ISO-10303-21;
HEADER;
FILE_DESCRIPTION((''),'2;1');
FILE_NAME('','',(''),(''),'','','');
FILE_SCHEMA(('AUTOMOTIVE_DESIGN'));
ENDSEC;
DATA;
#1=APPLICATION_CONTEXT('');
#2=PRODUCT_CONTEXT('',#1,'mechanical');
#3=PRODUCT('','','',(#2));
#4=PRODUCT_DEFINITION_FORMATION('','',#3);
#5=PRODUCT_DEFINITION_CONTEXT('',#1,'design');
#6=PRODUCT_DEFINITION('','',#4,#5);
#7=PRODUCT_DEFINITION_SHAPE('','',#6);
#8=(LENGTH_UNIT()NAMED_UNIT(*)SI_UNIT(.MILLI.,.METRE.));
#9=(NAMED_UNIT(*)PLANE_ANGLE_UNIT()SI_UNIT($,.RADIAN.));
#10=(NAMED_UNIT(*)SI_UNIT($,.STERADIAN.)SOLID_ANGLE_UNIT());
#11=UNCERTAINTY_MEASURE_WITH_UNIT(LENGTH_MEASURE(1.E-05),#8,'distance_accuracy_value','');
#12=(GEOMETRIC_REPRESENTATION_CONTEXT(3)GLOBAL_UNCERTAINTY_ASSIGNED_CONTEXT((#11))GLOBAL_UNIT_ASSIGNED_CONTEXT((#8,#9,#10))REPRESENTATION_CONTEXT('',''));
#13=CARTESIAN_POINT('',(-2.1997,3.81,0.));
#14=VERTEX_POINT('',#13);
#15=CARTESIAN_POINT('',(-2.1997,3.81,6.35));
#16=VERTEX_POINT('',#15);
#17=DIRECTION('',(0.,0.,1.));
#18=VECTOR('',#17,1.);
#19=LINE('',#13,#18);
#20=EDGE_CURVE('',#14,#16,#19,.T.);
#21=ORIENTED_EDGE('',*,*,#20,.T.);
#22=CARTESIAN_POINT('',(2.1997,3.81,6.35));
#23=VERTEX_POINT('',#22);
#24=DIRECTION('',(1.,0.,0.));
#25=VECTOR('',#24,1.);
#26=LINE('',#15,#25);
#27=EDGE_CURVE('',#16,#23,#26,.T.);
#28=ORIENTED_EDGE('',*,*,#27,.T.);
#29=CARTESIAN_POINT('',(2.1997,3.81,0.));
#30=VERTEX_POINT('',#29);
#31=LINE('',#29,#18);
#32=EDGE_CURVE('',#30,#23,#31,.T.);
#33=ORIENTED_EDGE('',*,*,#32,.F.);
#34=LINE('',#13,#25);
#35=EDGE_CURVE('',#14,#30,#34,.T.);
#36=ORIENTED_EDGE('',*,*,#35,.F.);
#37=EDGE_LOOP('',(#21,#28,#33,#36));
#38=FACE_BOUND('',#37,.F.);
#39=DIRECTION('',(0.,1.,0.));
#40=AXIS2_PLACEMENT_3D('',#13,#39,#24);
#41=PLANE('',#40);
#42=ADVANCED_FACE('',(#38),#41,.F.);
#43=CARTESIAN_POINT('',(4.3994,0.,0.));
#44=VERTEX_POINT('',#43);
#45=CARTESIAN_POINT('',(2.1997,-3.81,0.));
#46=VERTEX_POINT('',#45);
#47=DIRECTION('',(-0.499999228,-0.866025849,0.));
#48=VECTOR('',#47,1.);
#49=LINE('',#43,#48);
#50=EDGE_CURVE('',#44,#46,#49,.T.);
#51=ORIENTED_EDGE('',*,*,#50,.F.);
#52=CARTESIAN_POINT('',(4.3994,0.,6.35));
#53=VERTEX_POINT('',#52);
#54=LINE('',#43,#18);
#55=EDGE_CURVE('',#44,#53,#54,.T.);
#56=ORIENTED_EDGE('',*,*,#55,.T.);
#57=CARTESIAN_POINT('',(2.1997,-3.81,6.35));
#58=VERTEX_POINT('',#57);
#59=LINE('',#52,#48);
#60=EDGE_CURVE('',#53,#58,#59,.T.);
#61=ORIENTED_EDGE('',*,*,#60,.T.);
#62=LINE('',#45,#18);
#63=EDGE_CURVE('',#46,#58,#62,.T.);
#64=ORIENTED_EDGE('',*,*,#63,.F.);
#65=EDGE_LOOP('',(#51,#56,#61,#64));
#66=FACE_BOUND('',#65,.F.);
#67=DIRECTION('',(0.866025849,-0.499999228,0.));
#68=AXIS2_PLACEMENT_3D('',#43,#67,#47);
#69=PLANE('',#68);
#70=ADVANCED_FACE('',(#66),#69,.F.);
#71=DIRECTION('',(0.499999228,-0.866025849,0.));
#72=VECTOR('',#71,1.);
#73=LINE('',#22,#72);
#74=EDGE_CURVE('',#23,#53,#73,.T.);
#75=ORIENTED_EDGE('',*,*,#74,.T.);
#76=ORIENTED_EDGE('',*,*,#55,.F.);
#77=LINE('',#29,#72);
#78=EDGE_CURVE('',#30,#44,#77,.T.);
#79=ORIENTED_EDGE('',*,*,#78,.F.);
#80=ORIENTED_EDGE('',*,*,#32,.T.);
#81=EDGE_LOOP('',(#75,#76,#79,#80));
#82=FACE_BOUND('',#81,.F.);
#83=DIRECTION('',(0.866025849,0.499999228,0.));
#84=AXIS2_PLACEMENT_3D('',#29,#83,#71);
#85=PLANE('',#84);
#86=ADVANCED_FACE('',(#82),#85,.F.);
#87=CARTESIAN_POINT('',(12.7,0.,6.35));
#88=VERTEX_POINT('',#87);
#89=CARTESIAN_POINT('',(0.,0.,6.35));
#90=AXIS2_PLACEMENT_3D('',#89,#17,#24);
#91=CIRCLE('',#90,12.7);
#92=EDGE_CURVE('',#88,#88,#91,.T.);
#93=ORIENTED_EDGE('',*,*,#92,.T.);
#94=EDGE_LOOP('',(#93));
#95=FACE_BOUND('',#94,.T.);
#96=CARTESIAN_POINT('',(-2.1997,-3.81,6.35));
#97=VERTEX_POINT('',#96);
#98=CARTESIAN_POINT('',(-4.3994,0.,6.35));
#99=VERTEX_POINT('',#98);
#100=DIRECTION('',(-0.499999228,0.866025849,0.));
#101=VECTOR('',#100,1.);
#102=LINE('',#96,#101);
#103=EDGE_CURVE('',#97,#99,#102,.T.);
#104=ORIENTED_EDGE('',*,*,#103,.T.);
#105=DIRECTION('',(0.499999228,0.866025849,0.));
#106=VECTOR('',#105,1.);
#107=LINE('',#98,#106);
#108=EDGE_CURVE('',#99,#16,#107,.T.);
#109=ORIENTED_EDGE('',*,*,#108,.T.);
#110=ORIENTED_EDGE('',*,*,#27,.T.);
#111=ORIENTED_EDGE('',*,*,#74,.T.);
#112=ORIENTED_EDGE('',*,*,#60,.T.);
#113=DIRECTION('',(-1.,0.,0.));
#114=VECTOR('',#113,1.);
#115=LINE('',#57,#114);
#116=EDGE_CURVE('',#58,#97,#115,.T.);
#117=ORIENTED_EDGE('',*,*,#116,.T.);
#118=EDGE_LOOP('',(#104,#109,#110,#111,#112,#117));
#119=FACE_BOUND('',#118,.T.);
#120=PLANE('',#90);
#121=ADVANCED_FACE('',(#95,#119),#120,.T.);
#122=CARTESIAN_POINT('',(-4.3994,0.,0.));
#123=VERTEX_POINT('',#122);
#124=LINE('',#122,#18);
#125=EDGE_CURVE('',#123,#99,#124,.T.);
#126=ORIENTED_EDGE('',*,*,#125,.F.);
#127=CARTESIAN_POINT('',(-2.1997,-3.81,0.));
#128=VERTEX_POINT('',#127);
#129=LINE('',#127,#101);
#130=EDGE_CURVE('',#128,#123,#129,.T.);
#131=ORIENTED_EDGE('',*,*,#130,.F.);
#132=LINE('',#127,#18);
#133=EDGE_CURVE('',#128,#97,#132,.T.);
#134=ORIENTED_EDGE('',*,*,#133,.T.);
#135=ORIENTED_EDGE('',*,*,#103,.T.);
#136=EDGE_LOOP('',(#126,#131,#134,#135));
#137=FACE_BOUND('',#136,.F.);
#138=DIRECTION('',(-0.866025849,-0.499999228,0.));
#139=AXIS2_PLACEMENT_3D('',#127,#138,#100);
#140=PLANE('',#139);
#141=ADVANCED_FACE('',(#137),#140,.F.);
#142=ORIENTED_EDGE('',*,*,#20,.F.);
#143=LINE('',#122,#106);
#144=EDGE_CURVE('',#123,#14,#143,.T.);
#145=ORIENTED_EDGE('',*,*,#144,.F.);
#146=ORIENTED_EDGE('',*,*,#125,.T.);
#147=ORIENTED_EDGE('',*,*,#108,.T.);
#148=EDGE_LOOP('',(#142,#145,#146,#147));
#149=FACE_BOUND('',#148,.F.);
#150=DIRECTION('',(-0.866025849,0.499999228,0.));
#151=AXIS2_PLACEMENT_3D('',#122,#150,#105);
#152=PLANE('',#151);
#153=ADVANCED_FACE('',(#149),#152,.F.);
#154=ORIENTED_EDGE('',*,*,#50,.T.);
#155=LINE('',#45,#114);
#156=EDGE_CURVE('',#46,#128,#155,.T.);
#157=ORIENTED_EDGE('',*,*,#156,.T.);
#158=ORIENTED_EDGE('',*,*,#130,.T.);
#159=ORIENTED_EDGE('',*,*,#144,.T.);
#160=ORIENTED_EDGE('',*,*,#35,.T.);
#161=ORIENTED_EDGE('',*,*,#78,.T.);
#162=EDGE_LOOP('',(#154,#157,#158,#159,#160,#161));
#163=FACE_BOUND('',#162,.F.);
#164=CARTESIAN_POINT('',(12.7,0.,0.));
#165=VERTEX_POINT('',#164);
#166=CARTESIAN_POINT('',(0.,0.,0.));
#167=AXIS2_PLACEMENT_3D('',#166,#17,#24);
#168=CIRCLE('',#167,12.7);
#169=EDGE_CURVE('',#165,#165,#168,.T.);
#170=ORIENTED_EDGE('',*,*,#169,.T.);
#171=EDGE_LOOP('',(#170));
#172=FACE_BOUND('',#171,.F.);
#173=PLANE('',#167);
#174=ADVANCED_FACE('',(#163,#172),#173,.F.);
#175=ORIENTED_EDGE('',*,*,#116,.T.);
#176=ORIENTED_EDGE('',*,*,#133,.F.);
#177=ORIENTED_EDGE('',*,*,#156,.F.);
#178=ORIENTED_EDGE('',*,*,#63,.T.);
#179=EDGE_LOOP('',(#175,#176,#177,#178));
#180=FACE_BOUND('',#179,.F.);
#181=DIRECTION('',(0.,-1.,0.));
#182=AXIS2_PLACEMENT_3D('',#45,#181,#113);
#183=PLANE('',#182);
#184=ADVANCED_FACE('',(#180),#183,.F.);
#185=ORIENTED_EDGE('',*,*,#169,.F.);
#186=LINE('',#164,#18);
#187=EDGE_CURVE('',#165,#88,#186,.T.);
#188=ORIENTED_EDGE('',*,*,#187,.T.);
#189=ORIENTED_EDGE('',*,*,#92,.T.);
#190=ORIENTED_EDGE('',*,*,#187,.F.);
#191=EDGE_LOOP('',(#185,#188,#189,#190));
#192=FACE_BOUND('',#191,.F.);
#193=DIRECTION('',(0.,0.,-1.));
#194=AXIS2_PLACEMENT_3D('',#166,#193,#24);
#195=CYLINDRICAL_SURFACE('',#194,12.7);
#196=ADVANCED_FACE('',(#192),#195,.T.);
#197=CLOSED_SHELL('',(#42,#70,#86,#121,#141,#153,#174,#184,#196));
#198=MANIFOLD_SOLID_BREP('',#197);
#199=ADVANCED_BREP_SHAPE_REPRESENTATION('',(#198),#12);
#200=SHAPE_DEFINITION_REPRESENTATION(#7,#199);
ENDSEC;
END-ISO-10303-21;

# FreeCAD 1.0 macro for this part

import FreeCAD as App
import Part
import Sketcher
Q = App.Units.Quantity


def add_polygon(sketch, points):
    """Adds a closed chain of lines whose ends are joined by coincident constraints."""
    first, n = sketch.GeometryCount, len(points)
    for a, b in zip(points, points[1:] + points[:1]):
        sketch.addGeometry(Part.LineSegment(App.Vector(*a, 0), App.Vector(*b, 0)), False)
    for i in range(n):
        sketch.addConstraint(Sketcher.Constraint("Coincident", first + i, 2, first + (i + 1) % n, 1))

doc = App.newDocument("Part")
body = doc.addObject("PartDesign::Body", "Body")

# Sketch on XY plane
sketch1 = doc.addObject("Sketcher::SketchObject", "Sketch")
body.addObject(sketch1)
sketch1.AttachmentSupport = (doc.XY_Plane, [""])
sketch1.MapMode = "FlatFace"
sketch1.addGeometry(Part.Circle(App.Vector(0, 0, 0), App.Vector(0, 0, 1), 12.7), False)  # 0
add_polygon(sketch1, [(-2.2, 3.8), (2.2, 3.8), (4.4, 0), (2.2, -3.8), (-2.2, -3.8), (-4.4, 0)])  # lines 1-6
sketch1.addConstraint(Sketcher.Constraint("Horizontal", 1))
sketch1.addConstraint(Sketcher.Constraint("Horizontal", 4))
sketch1.addConstraint(Sketcher.Constraint("Coincident", 0, 3, -1, 1))
sketch1.addConstraint(Sketcher.Constraint("Symmetric", 1, 2, 4, 2, -1, 1))
sketch1.addConstraint(Sketcher.Constraint("Symmetric", 2, 2, 5, 2, -1, 1))
sketch1.addConstraint(Sketcher.Constraint("PointOnObject", 2, 2, -1))
sketch1.addConstraint(Sketcher.Constraint("Parallel", 3, 6))
sketch1.addConstraint(Sketcher.Constraint("Vertical", 1, 2, 3, 2))
sketch1.addConstraint(Sketcher.Constraint("Diameter", 0, Q("1 in")))
sketch1.addConstraint(Sketcher.Constraint("DistanceY", 3, 2, 1, 2, Q("0.3 in")))
sketch1.addConstraint(Sketcher.Constraint("Angle", 2, Q("-60 deg")))
sketch1.addConstraint(Sketcher.Constraint("DistanceX", 1, 1, 1, 2, Q("0.1732 in")))
pad1 = doc.addObject("PartDesign::Pad", "Pad")
body.addObject(pad1)
pad1.Profile = sketch1
pad1.Length = Q("0.25 in")

doc.recompute()
